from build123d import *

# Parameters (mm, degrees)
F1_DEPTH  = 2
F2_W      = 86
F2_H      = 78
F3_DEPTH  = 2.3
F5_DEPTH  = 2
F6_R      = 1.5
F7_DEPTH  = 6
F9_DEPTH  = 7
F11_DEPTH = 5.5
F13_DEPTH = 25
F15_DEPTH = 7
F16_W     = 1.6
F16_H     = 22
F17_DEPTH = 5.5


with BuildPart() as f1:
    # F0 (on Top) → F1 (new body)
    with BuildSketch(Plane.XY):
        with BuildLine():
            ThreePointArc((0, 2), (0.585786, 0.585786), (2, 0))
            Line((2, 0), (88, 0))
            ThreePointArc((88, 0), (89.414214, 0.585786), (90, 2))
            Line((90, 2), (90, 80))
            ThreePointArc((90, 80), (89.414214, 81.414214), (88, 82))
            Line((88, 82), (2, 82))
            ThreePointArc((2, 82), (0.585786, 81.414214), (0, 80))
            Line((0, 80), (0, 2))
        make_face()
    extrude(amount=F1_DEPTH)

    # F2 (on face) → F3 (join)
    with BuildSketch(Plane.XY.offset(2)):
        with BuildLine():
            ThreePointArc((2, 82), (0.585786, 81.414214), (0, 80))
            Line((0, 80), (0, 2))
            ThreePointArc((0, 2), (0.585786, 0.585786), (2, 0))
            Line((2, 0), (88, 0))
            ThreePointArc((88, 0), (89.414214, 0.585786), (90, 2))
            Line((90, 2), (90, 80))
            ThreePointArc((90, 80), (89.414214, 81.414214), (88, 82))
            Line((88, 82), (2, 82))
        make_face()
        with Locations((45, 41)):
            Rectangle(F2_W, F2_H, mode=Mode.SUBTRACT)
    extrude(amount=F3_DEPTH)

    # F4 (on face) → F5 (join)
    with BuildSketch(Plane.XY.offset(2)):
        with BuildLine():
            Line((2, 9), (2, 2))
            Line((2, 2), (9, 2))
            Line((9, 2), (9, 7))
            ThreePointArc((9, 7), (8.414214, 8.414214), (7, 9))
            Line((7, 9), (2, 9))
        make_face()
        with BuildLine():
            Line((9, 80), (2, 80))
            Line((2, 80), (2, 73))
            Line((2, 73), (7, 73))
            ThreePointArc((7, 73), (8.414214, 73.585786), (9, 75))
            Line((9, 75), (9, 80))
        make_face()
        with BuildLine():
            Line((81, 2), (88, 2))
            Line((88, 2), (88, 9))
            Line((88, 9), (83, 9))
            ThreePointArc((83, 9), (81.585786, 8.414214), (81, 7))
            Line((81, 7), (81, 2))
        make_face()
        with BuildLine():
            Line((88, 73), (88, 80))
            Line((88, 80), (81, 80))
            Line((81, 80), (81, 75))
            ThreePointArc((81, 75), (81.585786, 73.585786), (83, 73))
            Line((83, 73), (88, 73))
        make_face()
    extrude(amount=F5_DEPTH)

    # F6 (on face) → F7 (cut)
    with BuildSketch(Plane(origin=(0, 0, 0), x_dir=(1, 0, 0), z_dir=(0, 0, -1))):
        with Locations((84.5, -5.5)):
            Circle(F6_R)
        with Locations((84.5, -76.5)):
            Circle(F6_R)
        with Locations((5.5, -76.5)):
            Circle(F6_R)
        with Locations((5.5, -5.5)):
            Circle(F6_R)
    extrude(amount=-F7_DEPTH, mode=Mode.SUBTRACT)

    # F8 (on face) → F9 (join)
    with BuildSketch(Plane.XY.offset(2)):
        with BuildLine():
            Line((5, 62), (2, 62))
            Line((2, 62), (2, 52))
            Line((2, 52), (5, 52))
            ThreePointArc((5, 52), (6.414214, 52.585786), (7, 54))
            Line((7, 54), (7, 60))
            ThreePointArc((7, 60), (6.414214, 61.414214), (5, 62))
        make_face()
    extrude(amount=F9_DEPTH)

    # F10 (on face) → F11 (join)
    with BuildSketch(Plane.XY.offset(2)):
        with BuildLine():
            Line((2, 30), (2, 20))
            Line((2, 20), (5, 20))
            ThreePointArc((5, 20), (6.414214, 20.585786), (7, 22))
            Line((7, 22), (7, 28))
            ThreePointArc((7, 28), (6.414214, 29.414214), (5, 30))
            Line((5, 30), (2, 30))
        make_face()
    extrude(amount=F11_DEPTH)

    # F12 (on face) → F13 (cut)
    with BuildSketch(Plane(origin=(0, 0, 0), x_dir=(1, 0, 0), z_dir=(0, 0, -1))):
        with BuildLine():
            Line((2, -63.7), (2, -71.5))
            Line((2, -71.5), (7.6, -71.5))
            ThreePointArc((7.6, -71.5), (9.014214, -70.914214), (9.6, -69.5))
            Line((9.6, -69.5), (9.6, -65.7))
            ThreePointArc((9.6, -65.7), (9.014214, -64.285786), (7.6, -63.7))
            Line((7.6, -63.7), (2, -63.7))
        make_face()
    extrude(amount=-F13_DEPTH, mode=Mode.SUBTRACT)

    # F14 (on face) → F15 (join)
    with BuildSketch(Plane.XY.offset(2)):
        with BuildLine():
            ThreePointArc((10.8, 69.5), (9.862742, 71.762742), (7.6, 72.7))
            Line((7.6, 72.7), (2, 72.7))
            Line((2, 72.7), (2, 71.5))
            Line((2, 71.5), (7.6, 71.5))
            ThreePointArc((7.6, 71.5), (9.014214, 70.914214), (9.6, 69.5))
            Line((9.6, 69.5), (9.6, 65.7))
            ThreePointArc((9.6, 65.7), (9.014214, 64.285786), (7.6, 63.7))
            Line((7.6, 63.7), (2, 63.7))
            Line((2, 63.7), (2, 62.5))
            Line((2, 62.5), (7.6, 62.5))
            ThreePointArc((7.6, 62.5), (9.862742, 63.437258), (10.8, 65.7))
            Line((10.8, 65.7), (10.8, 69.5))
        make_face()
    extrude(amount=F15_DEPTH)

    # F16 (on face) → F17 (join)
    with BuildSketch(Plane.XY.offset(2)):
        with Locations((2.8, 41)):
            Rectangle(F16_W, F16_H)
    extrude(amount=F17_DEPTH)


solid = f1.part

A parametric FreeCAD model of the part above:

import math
import FreeCAD as App
import Part
import Sketcher

V = App.Vector
Q = App.Units.Quantity


def add_polygon(sketch, points):
    """Adds a closed chain of lines whose ends are joined by coincident constraints."""
    first, n = sketch.GeometryCount, len(points)
    for a, b in zip(points, points[1:] + points[:1]):
        sketch.addGeometry(Part.LineSegment(App.Vector(*a, 0), App.Vector(*b, 0)), False)
    for i in range(n):
        sketch.addConstraint(Sketcher.Constraint("Coincident", first + i, 2, first + (i + 1) % n, 1))

doc = App.newDocument("Part")
body = doc.addObject("PartDesign::Body", "Body")

sketch1 = doc.addObject("Sketcher::SketchObject", "Sketch")
body.addObject(sketch1)
sketch1.AttachmentSupport = (doc.XY_Plane, [""])
sketch1.MapMode = "FlatFace"
sketch1.addGeometry(Part.ArcOfCircle(Part.Circle(V(2, 2, 0), V(0, 0, 1), 2), math.radians(180), math.radians(270)), False)
sketch1.addGeometry(Part.LineSegment(V(2, 0, 0), V(88, 0, 0)), False)
sketch1.addGeometry(Part.ArcOfCircle(Part.Circle(V(88, 2, 0), V(0, 0, 1), 2), math.radians(-90), math.radians(0)), False)
sketch1.addGeometry(Part.LineSegment(V(90, 2, 0), V(90, 80, 0)), False)
sketch1.addGeometry(Part.ArcOfCircle(Part.Circle(V(88, 80, 0), V(0, 0, 1), 2), math.radians(0), math.radians(90)), False)
sketch1.addGeometry(Part.LineSegment(V(88, 82, 0), V(2, 82, 0)), False)
sketch1.addGeometry(Part.ArcOfCircle(Part.Circle(V(2, 80, 0), V(0, 0, 1), 2), math.radians(90), math.radians(180)), False)
sketch1.addGeometry(Part.LineSegment(V(0, 80, 0), V(0, 2, 0)), False)
sketch1.addConstraint(Sketcher.Constraint("Tangent", 0, 2, 1, 1))
sketch1.addConstraint(Sketcher.Constraint("Tangent", 1, 2, 2, 1))
sketch1.addConstraint(Sketcher.Constraint("Tangent", 2, 2, 3, 1))
sketch1.addConstraint(Sketcher.Constraint("Tangent", 3, 2, 4, 1))
sketch1.addConstraint(Sketcher.Constraint("Tangent", 4, 2, 5, 1))
sketch1.addConstraint(Sketcher.Constraint("Tangent", 5, 2, 6, 1))
sketch1.addConstraint(Sketcher.Constraint("Tangent", 6, 2, 7, 1))
sketch1.addConstraint(Sketcher.Constraint("Tangent", 7, 2, 0, 1))
sketch1.addConstraint(Sketcher.Constraint("Horizontal", 1))
sketch1.addConstraint(Sketcher.Constraint("Vertical", 3))
sketch1.addConstraint(Sketcher.Constraint("Horizontal", 5))
sketch1.addConstraint(Sketcher.Constraint("Vertical", 7))
sketch1.addConstraint(Sketcher.Constraint("Equal", 0, 2))
sketch1.addConstraint(Sketcher.Constraint("Equal", 2, 4))
sketch1.addConstraint(Sketcher.Constraint("Equal", 4, 6))
sketch1.addConstraint(Sketcher.Constraint("PointOnObject", 0, 2, -1))
sketch1.addConstraint(Sketcher.Constraint("PointOnObject", 6, 2, -2))
sketch1.addConstraint(Sketcher.Constraint("Radius", 0, Q("1.999999 mm")))
sketch1.addConstraint(Sketcher.Constraint("DistanceX", 1, 1, 1, 2, Q("86 mm")))
sketch1.addConstraint(Sketcher.Constraint("DistanceY", 3, 1, 3, 2, Q("78 mm")))
pad1 = doc.addObject("PartDesign::Pad", "Pad")
body.addObject(pad1)
pad1.Profile = sketch1
pad1.Length = 2

sketch2 = doc.addObject("Sketcher::SketchObject", "Sketch001")
body.addObject(sketch2)
sketch2.AttachmentSupport = (doc.XY_Plane, [""])
sketch2.MapMode = "FlatFace"
sketch2.AttachmentOffset = App.Placement(V(0, 0, 2), App.Rotation())
sketch2.addGeometry(Part.ArcOfCircle(Part.Circle(V(2, 80, 0), V(0, 0, 1), 2), math.radians(90), math.radians(180)), False)
sketch2.addGeometry(Part.LineSegment(V(0, 80, 0), V(0, 2, 0)), False)
sketch2.addGeometry(Part.ArcOfCircle(Part.Circle(V(2, 2, 0), V(0, 0, 1), 2), math.radians(180), math.radians(270)), False)
sketch2.addGeometry(Part.LineSegment(V(2, 0, 0), V(88, 0, 0)), False)
sketch2.addGeometry(Part.ArcOfCircle(Part.Circle(V(88, 2, 0), V(0, 0, 1), 2), math.radians(-90), math.radians(0)), False)
sketch2.addGeometry(Part.LineSegment(V(90, 2, 0), V(90, 80, 0)), False)
sketch2.addGeometry(Part.ArcOfCircle(Part.Circle(V(88, 80, 0), V(0, 0, 1), 2), math.radians(0), math.radians(90)), False)
sketch2.addGeometry(Part.LineSegment(V(88, 82, 0), V(2, 82, 0)), False)
add_polygon(sketch2, [(88, 2), (2, 2), (2, 80), (88, 80)])
sketch2.addConstraint(Sketcher.Constraint("Tangent", 0, 2, 1, 1))
sketch2.addConstraint(Sketcher.Constraint("Tangent", 1, 2, 2, 1))
sketch2.addConstraint(Sketcher.Constraint("Tangent", 2, 2, 3, 1))
sketch2.addConstraint(Sketcher.Constraint("Tangent", 3, 2, 4, 1))
sketch2.addConstraint(Sketcher.Constraint("Tangent", 4, 2, 5, 1))
sketch2.addConstraint(Sketcher.Constraint("Tangent", 5, 2, 6, 1))
sketch2.addConstraint(Sketcher.Constraint("Tangent", 6, 2, 7, 1))
sketch2.addConstraint(Sketcher.Constraint("Tangent", 7, 2, 0, 1))
sketch2.addConstraint(Sketcher.Constraint("Vertical", 1))
sketch2.addConstraint(Sketcher.Constraint("Horizontal", 3))
sketch2.addConstraint(Sketcher.Constraint("Vertical", 5))
sketch2.addConstraint(Sketcher.Constraint("Horizontal", 7))
sketch2.addConstraint(Sketcher.Constraint("Horizontal", 8))
sketch2.addConstraint(Sketcher.Constraint("Vertical", 9))
sketch2.addConstraint(Sketcher.Constraint("Horizontal", 10))
sketch2.addConstraint(Sketcher.Constraint("Vertical", 11))
sketch2.addConstraint(Sketcher.Constraint("Coincident", 8, 2, 2, 3))
sketch2.addConstraint(Sketcher.Constraint("Coincident", 9, 2, 0, 3))
sketch2.addConstraint(Sketcher.Constraint("Coincident", 10, 2, 6, 3))
sketch2.addConstraint(Sketcher.Constraint("Equal", 2, 4))
sketch2.addConstraint(Sketcher.Constraint("PointOnObject", 0, 2, -2))
sketch2.addConstraint(Sketcher.Constraint("PointOnObject", 2, 2, -1))
sketch2.addConstraint(Sketcher.Constraint("Radius", 0, Q("1.999999 mm")))
sketch2.addConstraint(Sketcher.Constraint("DistanceX", 3, 1, 3, 2, Q("86 mm")))
sketch2.addConstraint(Sketcher.Constraint("DistanceY", 1, 2, 1, 1, Q("78 mm")))
pad2 = doc.addObject("PartDesign::Pad", "Pad001")
body.addObject(pad2)
pad2.Profile = sketch2
pad2.Length = 2.3

sketch3 = doc.addObject("Sketcher::SketchObject", "Sketch002")
body.addObject(sketch3)
sketch3.AttachmentSupport = (doc.XY_Plane, [""])
sketch3.MapMode = "FlatFace"
sketch3.AttachmentOffset = App.Placement(V(0, 0, 2), App.Rotation())
sketch3.addGeometry(Part.LineSegment(V(2, 9, 0), V(2, 2, 0)), False)
sketch3.addGeometry(Part.LineSegment(V(2, 2, 0), V(9, 2, 0)), False)
sketch3.addGeometry(Part.LineSegment(V(9, 2, 0), V(9, 7, 0)), False)
sketch3.addGeometry(Part.ArcOfCircle(Part.Circle(V(7, 7, 0), V(0, 0, 1), 2), math.radians(0), math.radians(90)), False)
sketch3.addGeometry(Part.LineSegment(V(7, 9, 0), V(2, 9, 0)), False)
sketch3.addGeometry(Part.LineSegment(V(9, 80, 0), V(2, 80, 0)), False)
sketch3.addGeometry(Part.LineSegment(V(2, 80, 0), V(2, 73, 0)), False)
sketch3.addGeometry(Part.LineSegment(V(2, 73, 0), V(7, 73, 0)), False)
sketch3.addGeometry(Part.ArcOfCircle(Part.Circle(V(7, 75, 0), V(0, 0, 1), 2), math.radians(-90), math.radians(0)), False)
sketch3.addGeometry(Part.LineSegment(V(9, 75, 0), V(9, 80, 0)), False)
sketch3.addGeometry(Part.LineSegment(V(81, 2, 0), V(88, 2, 0)), False)
sketch3.addGeometry(Part.LineSegment(V(88, 2, 0), V(88, 9, 0)), False)
sketch3.addGeometry(Part.LineSegment(V(88, 9, 0), V(83, 9, 0)), False)
sketch3.addGeometry(Part.ArcOfCircle(Part.Circle(V(83, 7, 0), V(0, 0, 1), 2), math.radians(90), math.radians(180)), False)
sketch3.addGeometry(Part.LineSegment(V(81, 7, 0), V(81, 2, 0)), False)
sketch3.addGeometry(Part.LineSegment(V(88, 73, 0), V(88, 80, 0)), False)
sketch3.addGeometry(Part.LineSegment(V(88, 80, 0), V(81, 80, 0)), False)
sketch3.addGeometry(Part.LineSegment(V(81, 80, 0), V(81, 75, 0)), False)
sketch3.addGeometry(Part.ArcOfCircle(Part.Circle(V(83, 75, 0), V(0, 0, 1), 2), math.radians(180), math.radians(270)), False)
sketch3.addGeometry(Part.LineSegment(V(83, 73, 0), V(88, 73, 0)), False)
sketch3.addConstraint(Sketcher.Constraint("Coincident", 0, 2, 1, 1))
sketch3.addConstraint(Sketcher.Constraint("Coincident", 1, 2, 2, 1))
sketch3.addConstraint(Sketcher.Constraint("Tangent", 2, 2, 3, 1))
sketch3.addConstraint(Sketcher.Constraint("Tangent", 3, 2, 4, 1))
sketch3.addConstraint(Sketcher.Constraint("Coincident", 4, 2, 0, 1))
sketch3.addConstraint(Sketcher.Constraint("Coincident", 5, 2, 6, 1))
sketch3.addConstraint(Sketcher.Constraint("Coincident", 6, 2, 7, 1))
sketch3.addConstraint(Sketcher.Constraint("Tangent", 7, 2, 8, 1))
sketch3.addConstraint(Sketcher.Constraint("Tangent", 8, 2, 9, 1))
sketch3.addConstraint(Sketcher.Constraint("Coincident", 9, 2, 5, 1))
sketch3.addConstraint(Sketcher.Constraint("Coincident", 10, 2, 11, 1))
sketch3.addConstraint(Sketcher.Constraint("Coincident", 11, 2, 12, 1))
sketch3.addConstraint(Sketcher.Constraint("Tangent", 12, 2, 13, 1))
sketch3.addConstraint(Sketcher.Constraint("Tangent", 13, 2, 14, 1))
sketch3.addConstraint(Sketcher.Constraint("Coincident", 14, 2, 10, 1))
sketch3.addConstraint(Sketcher.Constraint("Coincident", 15, 2, 16, 1))
sketch3.addConstraint(Sketcher.Constraint("Coincident", 16, 2, 17, 1))
sketch3.addConstraint(Sketcher.Constraint("Tangent", 17, 2, 18, 1))
sketch3.addConstraint(Sketcher.Constraint("Tangent", 18, 2, 19, 1))
sketch3.addConstraint(Sketcher.Constraint("Coincident", 19, 2, 15, 1))
sketch3.addConstraint(Sketcher.Constraint("Vertical", 0))
sketch3.addConstraint(Sketcher.Constraint("Horizontal", 1))
sketch3.addConstraint(Sketcher.Constraint("Vertical", 2))
sketch3.addConstraint(Sketcher.Constraint("Horizontal", 4))
sketch3.addConstraint(Sketcher.Constraint("Horizontal", 5))
sketch3.addConstraint(Sketcher.Constraint("Vertical", 6))
sketch3.addConstraint(Sketcher.Constraint("Horizontal", 7))
sketch3.addConstraint(Sketcher.Constraint("Vertical", 9))
sketch3.addConstraint(Sketcher.Constraint("Horizontal", 10))
sketch3.addConstraint(Sketcher.Constraint("Vertical", 11))
sketch3.addConstraint(Sketcher.Constraint("Horizontal", 12))
sketch3.addConstraint(Sketcher.Constraint("Vertical", 14))
sketch3.addConstraint(Sketcher.Constraint("Vertical", 15))
sketch3.addConstraint(Sketcher.Constraint("Horizontal", 16))
sketch3.addConstraint(Sketcher.Constraint("Vertical", 17))
sketch3.addConstraint(Sketcher.Constraint("Horizontal", 19))
sketch3.addConstraint(Sketcher.Constraint("Equal", 3, 8))
sketch3.addConstraint(Sketcher.Constraint("Equal", 8, 13))
sketch3.addConstraint(Sketcher.Constraint("Equal", 13, 18))
sketch3.addConstraint(Sketcher.Constraint("Horizontal", 3, 3, 13, 3))
sketch3.addConstraint(Sketcher.Constraint("Horizontal", 8, 3, 18, 3))
sketch3.addConstraint(Sketcher.Constraint("Horizontal", 1, 2, 10, 2))
sketch3.addConstraint(Sketcher.Constraint("Horizontal", 9, 2, 15, 2))
sketch3.addConstraint(Sketcher.Constraint("Vertical", 3, 3, 8, 3))
sketch3.addConstraint(Sketcher.Constraint("Vertical", 13, 3, 18, 3))
sketch3.addConstraint(Sketcher.Constraint("Vertical", 4, 2, 5, 2))
sketch3.addConstraint(Sketcher.Constraint("Vertical", 11, 2, 15, 2))
sketch3.addConstraint(Sketcher.Constraint("Equal", 5, 10))
sketch3.addConstraint(Sketcher.Constraint("Equal", 16, 0))
sketch3.addConstraint(Sketcher.Constraint("Equal", 0, 6))
sketch3.addConstraint(Sketcher.Constraint("Radius", 3, Q("1.999999 mm")))
sketch3.addConstraint(Sketcher.Constraint("DistanceX", 1, 1, 1, 2, Q("7 mm")))
sketch3.addConstraint(Sketcher.Constraint("DistanceX", -1, 1, 3, 3, Q("7.000001 mm")))
sketch3.addConstraint(Sketcher.Constraint("DistanceY", -1, 1, 3, 3, Q("7.000001 mm")))
sketch3.addConstraint(Sketcher.Constraint("DistanceY", -1, 1, 8, 3, Q("74.999999 mm")))
sketch3.addConstraint(Sketcher.Constraint("DistanceX", -1, 1, 13, 3, Q("82.999999 mm")))
pad3 = doc.addObject("PartDesign::Pad", "Pad002")
body.addObject(pad3)
pad3.Profile = sketch3
pad3.Length = 2

sketch4 = doc.addObject("Sketcher::SketchObject", "Sketch003")
body.addObject(sketch4)
sketch4.AttachmentSupport = (doc.XY_Plane, [""])
sketch4.MapMode = "FlatFace"
sketch4.addGeometry(Part.Circle(V(84.5, 5.5, 0), V(0, 0, 1), 1.5), False)
sketch4.addGeometry(Part.Circle(V(84.5, 76.5, 0), V(0, 0, 1), 1.5), False)
sketch4.addGeometry(Part.Circle(V(5.5, 76.5, 0), V(0, 0, 1), 1.5), False)
sketch4.addGeometry(Part.Circle(V(5.5, 5.5, 0), V(0, 0, 1), 1.5), False)
sketch4.addConstraint(Sketcher.Constraint("Equal", 0, 1))
sketch4.addConstraint(Sketcher.Constraint("Equal", 1, 2))
sketch4.addConstraint(Sketcher.Constraint("Equal", 2, 3))
sketch4.addConstraint(Sketcher.Constraint("Horizontal", 1, 3, 2, 3))
sketch4.addConstraint(Sketcher.Constraint("Horizontal", 0, 3, 3, 3))
sketch4.addConstraint(Sketcher.Constraint("Vertical", 0, 3, 1, 3))
sketch4.addConstraint(Sketcher.Constraint("Vertical", 2, 3, 3, 3))
sketch4.addConstraint(Sketcher.Constraint("Diameter", 0, Q("3 mm")))
sketch4.addConstraint(Sketcher.Constraint("DistanceY", 0, 3, 1, 3, Q("71 mm")))
sketch4.addConstraint(Sketcher.Constraint("DistanceX", 2, 3, 1, 3, Q("79 mm")))
sketch4.addConstraint(Sketcher.Constraint("DistanceX", -1, 1, 0, 3, Q("84.5 mm")))
sketch4.addConstraint(Sketcher.Constraint("DistanceY", -1, 1, 0, 3, Q("5.5 mm")))
pocket1 = doc.addObject("PartDesign::Pocket", "Pocket")
body.addObject(pocket1)
pocket1.Profile = sketch4
pocket1.Length = 6
pocket1.Reversed = True

sketch5 = doc.addObject("Sketcher::SketchObject", "Sketch004")
body.addObject(sketch5)
sketch5.AttachmentSupport = (doc.XY_Plane, [""])
sketch5.MapMode = "FlatFace"
sketch5.AttachmentOffset = App.Placement(V(0, 0, 2), App.Rotation())
sketch5.addGeometry(Part.LineSegment(V(5, 62, 0), V(2, 62, 0)), False)
sketch5.addGeometry(Part.LineSegment(V(2, 62, 0), V(2, 52, 0)), False)
sketch5.addGeometry(Part.LineSegment(V(2, 52, 0), V(5, 52, 0)), False)
sketch5.addGeometry(Part.ArcOfCircle(Part.Circle(V(5, 54, 0), V(0, 0, 1), 2), math.radians(-90), math.radians(0)), False)
sketch5.addGeometry(Part.LineSegment(V(7, 54, 0), V(7, 60, 0)), False)
sketch5.addGeometry(Part.ArcOfCircle(Part.Circle(V(5, 60, 0), V(0, 0, 1), 2), math.radians(0), math.radians(90)), False)
sketch5.addConstraint(Sketcher.Constraint("Coincident", 0, 2, 1, 1))
sketch5.addConstraint(Sketcher.Constraint("Coincident", 1, 2, 2, 1))
sketch5.addConstraint(Sketcher.Constraint("Tangent", 2, 2, 3, 1))
sketch5.addConstraint(Sketcher.Constraint("Tangent", 3, 2, 4, 1))
sketch5.addConstraint(Sketcher.Constraint("Tangent", 4, 2, 5, 1))
sketch5.addConstraint(Sketcher.Constraint("Tangent", 5, 2, 0, 1))
sketch5.addConstraint(Sketcher.Constraint("Horizontal", 0))
sketch5.addConstraint(Sketcher.Constraint("Vertical", 1))
sketch5.addConstraint(Sketcher.Constraint("Horizontal", 2))
sketch5.addConstraint(Sketcher.Constraint("Vertical", 4))
sketch5.addConstraint(Sketcher.Constraint("Equal", 3, 5))
sketch5.addConstraint(Sketcher.Constraint("Radius", 3, Q("1.999999 mm")))
sketch5.addConstraint(Sketcher.Constraint("DistanceX", 0, 2, 0, 1, Q("3 mm")))
sketch5.addConstraint(Sketcher.Constraint("DistanceY", 1, 2, 1, 1, Q("10 mm")))
sketch5.addConstraint(Sketcher.Constraint("DistanceX", -1, 1, 3, 3, Q("5.000001 mm")))
sketch5.addConstraint(Sketcher.Constraint("DistanceY", -1, 1, 3, 3, Q("53.999999 mm")))
pad4 = doc.addObject("PartDesign::Pad", "Pad003")
body.addObject(pad4)
pad4.Profile = sketch5
pad4.Length = 7

sketch6 = doc.addObject("Sketcher::SketchObject", "Sketch005")
body.addObject(sketch6)
sketch6.AttachmentSupport = (doc.XY_Plane, [""])
sketch6.MapMode = "FlatFace"
sketch6.AttachmentOffset = App.Placement(V(0, 0, 2), App.Rotation())
sketch6.addGeometry(Part.LineSegment(V(2, 30, 0), V(2, 20, 0)), False)
sketch6.addGeometry(Part.LineSegment(V(2, 20, 0), V(5, 20, 0)), False)
sketch6.addGeometry(Part.ArcOfCircle(Part.Circle(V(5, 22, 0), V(0, 0, 1), 2), math.radians(-90), math.radians(0)), False)
sketch6.addGeometry(Part.LineSegment(V(7, 22, 0), V(7, 28, 0)), False)
sketch6.addGeometry(Part.ArcOfCircle(Part.Circle(V(5, 28, 0), V(0, 0, 1), 2), math.radians(0), math.radians(90)), False)
sketch6.addGeometry(Part.LineSegment(V(5, 30, 0), V(2, 30, 0)), False)
sketch6.addConstraint(Sketcher.Constraint("Coincident", 0, 2, 1, 1))
sketch6.addConstraint(Sketcher.Constraint("Tangent", 1, 2, 2, 1))
sketch6.addConstraint(Sketcher.Constraint("Tangent", 2, 2, 3, 1))
sketch6.addConstraint(Sketcher.Constraint("Tangent", 3, 2, 4, 1))
sketch6.addConstraint(Sketcher.Constraint("Tangent", 4, 2, 5, 1))
sketch6.addConstraint(Sketcher.Constraint("Coincident", 5, 2, 0, 1))
sketch6.addConstraint(Sketcher.Constraint("Vertical", 0))
sketch6.addConstraint(Sketcher.Constraint("Horizontal", 1))
sketch6.addConstraint(Sketcher.Constraint("Vertical", 3))
sketch6.addConstraint(Sketcher.Constraint("Horizontal", 5))
sketch6.addConstraint(Sketcher.Constraint("Equal", 2, 4))
sketch6.addConstraint(Sketcher.Constraint("Radius", 2, Q("1.999999 mm")))
sketch6.addConstraint(Sketcher.Constraint("DistanceX", 1, 1, 1, 2, Q("3 mm")))
sketch6.addConstraint(Sketcher.Constraint("DistanceY", 0, 2, 0, 1, Q("10 mm")))
sketch6.addConstraint(Sketcher.Constraint("DistanceX", -1, 1, 2, 3, Q("5.000001 mm")))
sketch6.addConstraint(Sketcher.Constraint("DistanceY", -1, 1, 2, 3, Q("21.999999 mm")))
pad5 = doc.addObject("PartDesign::Pad", "Pad004")
body.addObject(pad5)
pad5.Profile = sketch6
pad5.Length = 5.5

sketch7 = doc.addObject("Sketcher::SketchObject", "Sketch006")
body.addObject(sketch7)
sketch7.AttachmentSupport = (doc.XY_Plane, [""])
sketch7.MapMode = "FlatFace"
sketch7.addGeometry(Part.LineSegment(V(2, 63.7, 0), V(2, 71.5, 0)), False)
sketch7.addGeometry(Part.LineSegment(V(2, 71.5, 0), V(7.6, 71.5, 0)), False)
sketch7.addGeometry(Part.ArcOfCircle(Part.Circle(V(7.6, 69.5, 0), V(0, 0, 1), 2), math.radians(0), math.radians(90)), False)
sketch7.addGeometry(Part.LineSegment(V(9.6, 69.5, 0), V(9.6, 65.7, 0)), False)
sketch7.addGeometry(Part.ArcOfCircle(Part.Circle(V(7.6, 65.7, 0), V(0, 0, 1), 2), math.radians(-90), math.radians(0)), False)
sketch7.addGeometry(Part.LineSegment(V(7.6, 63.7, 0), V(2, 63.7, 0)), False)
sketch7.addConstraint(Sketcher.Constraint("Coincident", 0, 2, 1, 1))
sketch7.addConstraint(Sketcher.Constraint("Tangent", 1, 2, 2, 2))
sketch7.addConstraint(Sketcher.Constraint("Tangent", 2, 1, 3, 1))
sketch7.addConstraint(Sketcher.Constraint("Tangent", 3, 2, 4, 2))
sketch7.addConstraint(Sketcher.Constraint("Tangent", 4, 1, 5, 1))
sketch7.addConstraint(Sketcher.Constraint("Coincident", 5, 2, 0, 1))
sketch7.addConstraint(Sketcher.Constraint("Vertical", 0))
sketch7.addConstraint(Sketcher.Constraint("Horizontal", 1))
sketch7.addConstraint(Sketcher.Constraint("Vertical", 3))
sketch7.addConstraint(Sketcher.Constraint("Horizontal", 5))
sketch7.addConstraint(Sketcher.Constraint("Equal", 2, 4))
sketch7.addConstraint(Sketcher.Constraint("Radius", 2, Q("1.999999 mm")))
sketch7.addConstraint(Sketcher.Constraint("DistanceX", 1, 1, 1, 2, Q("5.6 mm")))
sketch7.addConstraint(Sketcher.Constraint("DistanceY", 0, 1, 0, 2, Q("7.8 mm")))
sketch7.addConstraint(Sketcher.Constraint("DistanceX", -1, 1, 0, 2, Q("2 mm")))
sketch7.addConstraint(Sketcher.Constraint("DistanceY", -1, 1, 2, 3, Q("69.500001 mm")))
pocket2 = doc.addObject("PartDesign::Pocket", "Pocket001")
body.addObject(pocket2)
pocket2.Profile = sketch7
pocket2.Length = 25
pocket2.Reversed = True

sketch8 = doc.addObject("Sketcher::SketchObject", "Sketch007")
body.addObject(sketch8)
sketch8.AttachmentSupport = (doc.XY_Plane, [""])
sketch8.MapMode = "FlatFace"
sketch8.AttachmentOffset = App.Placement(V(0, 0, 2), App.Rotation())
sketch8.addGeometry(Part.ArcOfCircle(Part.Circle(V(7.6, 69.5, 0), V(0, 0, 1), 3.2), math.radians(0), math.radians(90)), False)
sketch8.addGeometry(Part.LineSegment(V(7.6, 72.7, 0), V(2, 72.7, 0)), False)
sketch8.addGeometry(Part.LineSegment(V(2, 72.7, 0), V(2, 71.5, 0)), False)
sketch8.addGeometry(Part.LineSegment(V(2, 71.5, 0), V(7.6, 71.5, 0)), False)
sketch8.addGeometry(Part.ArcOfCircle(Part.Circle(V(7.6, 69.5, 0), V(0, 0, 1), 2), math.radians(0), math.radians(90)), False)
sketch8.addGeometry(Part.LineSegment(V(9.6, 69.5, 0), V(9.6, 65.7, 0)), False)
sketch8.addGeometry(Part.ArcOfCircle(Part.Circle(V(7.6, 65.7, 0), V(0, 0, 1), 2), math.radians(-90), math.radians(0)), False)
sketch8.addGeometry(Part.LineSegment(V(7.6, 63.7, 0), V(2, 63.7, 0)), False)
sketch8.addGeometry(Part.LineSegment(V(2, 63.7, 0), V(2, 62.5, 0)), False)
sketch8.addGeometry(Part.LineSegment(V(2, 62.5, 0), V(7.6, 62.5, 0)), False)
sketch8.addGeometry(Part.ArcOfCircle(Part.Circle(V(7.6, 65.7, 0), V(0, 0, 1), 3.2), math.radians(-90), math.radians(0)), False)
sketch8.addGeometry(Part.LineSegment(V(10.8, 65.7, 0), V(10.8, 69.5, 0)), False)
sketch8.addConstraint(Sketcher.Constraint("Tangent", 0, 2, 1, 1))
sketch8.addConstraint(Sketcher.Constraint("Coincident", 1, 2, 2, 1))
sketch8.addConstraint(Sketcher.Constraint("Coincident", 2, 2, 3, 1))
sketch8.addConstraint(Sketcher.Constraint("Tangent", 3, 2, 4, 2))
sketch8.addConstraint(Sketcher.Constraint("Tangent", 4, 1, 5, 1))
sketch8.addConstraint(Sketcher.Constraint("Tangent", 5, 2, 6, 2))
sketch8.addConstraint(Sketcher.Constraint("Tangent", 6, 1, 7, 1))
sketch8.addConstraint(Sketcher.Constraint("Coincident", 7, 2, 8, 1))
sketch8.addConstraint(Sketcher.Constraint("Coincident", 8, 2, 9, 1))
sketch8.addConstraint(Sketcher.Constraint("Tangent", 9, 2, 10, 1))
sketch8.addConstraint(Sketcher.Constraint("Tangent", 10, 2, 11, 1))
sketch8.addConstraint(Sketcher.Constraint("Tangent", 11, 2, 0, 1))
sketch8.addConstraint(Sketcher.Constraint("Horizontal", 1))
sketch8.addConstraint(Sketcher.Constraint("Vertical", 2))
sketch8.addConstraint(Sketcher.Constraint("Horizontal", 3))
sketch8.addConstraint(Sketcher.Constraint("Vertical", 5))
sketch8.addConstraint(Sketcher.Constraint("Horizontal", 7))
sketch8.addConstraint(Sketcher.Constraint("Vertical", 8))
sketch8.addConstraint(Sketcher.Constraint("Horizontal", 9))
sketch8.addConstraint(Sketcher.Constraint("Vertical", 11))
sketch8.addConstraint(Sketcher.Constraint("Coincident", 4, 3, 0, 3))
sketch8.addConstraint(Sketcher.Constraint("Coincident", 10, 3, 6, 3))
sketch8.addConstraint(Sketcher.Constraint("Equal", 4, 6))
sketch8.addConstraint(Sketcher.Constraint("Vertical", 2, 2, 7, 2))
sketch8.addConstraint(Sketcher.Constraint("Radius", 4, Q("1.999999 mm")))
sketch8.addConstraint(Sketcher.Constraint("Radius", 0, Q("3.199999 mm")))
sketch8.addConstraint(Sketcher.Constraint("DistanceX", 1, 2, 1, 1, Q("5.6 mm")))
sketch8.addConstraint(Sketcher.Constraint("DistanceY", 5, 2, 5, 1, Q("3.8 mm")))
sketch8.addConstraint(Sketcher.Constraint("DistanceX", -1, 1, 1, 2, Q("2 mm")))
sketch8.addConstraint(Sketcher.Constraint("DistanceY", -1, 1, 0, 3, Q("69.500001 mm")))
pad6 = doc.addObject("PartDesign::Pad", "Pad005")
body.addObject(pad6)
pad6.Profile = sketch8
pad6.Length = 7

sketch9 = doc.addObject("Sketcher::SketchObject", "Sketch008")
body.addObject(sketch9)
sketch9.AttachmentSupport = (doc.XY_Plane, [""])
sketch9.MapMode = "FlatFace"
sketch9.AttachmentOffset = App.Placement(V(0, 0, 2), App.Rotation())
add_polygon(sketch9, [(2, 52), (2, 30), (3.6, 30), (3.6, 52)])
sketch9.addConstraint(Sketcher.Constraint("Vertical", 0))
sketch9.addConstraint(Sketcher.Constraint("Horizontal", 1))
sketch9.addConstraint(Sketcher.Constraint("Vertical", 2))
sketch9.addConstraint(Sketcher.Constraint("Horizontal", 3))
sketch9.addConstraint(Sketcher.Constraint("DistanceY", 0, 2, 0, 1, Q("22 mm")))
sketch9.addConstraint(Sketcher.Constraint("DistanceX", 1, 1, 1, 2, Q("1.6 mm")))
sketch9.addConstraint(Sketcher.Constraint("DistanceX", -1, 1, 0, 2, Q("2 mm")))
sketch9.addConstraint(Sketcher.Constraint("DistanceY", -1, 1, 0, 2, Q("30 mm")))
pad7 = doc.addObject("PartDesign::Pad", "Pad006")
body.addObject(pad7)
pad7.Profile = sketch9
pad7.Length = 5.5

doc.recompute()
